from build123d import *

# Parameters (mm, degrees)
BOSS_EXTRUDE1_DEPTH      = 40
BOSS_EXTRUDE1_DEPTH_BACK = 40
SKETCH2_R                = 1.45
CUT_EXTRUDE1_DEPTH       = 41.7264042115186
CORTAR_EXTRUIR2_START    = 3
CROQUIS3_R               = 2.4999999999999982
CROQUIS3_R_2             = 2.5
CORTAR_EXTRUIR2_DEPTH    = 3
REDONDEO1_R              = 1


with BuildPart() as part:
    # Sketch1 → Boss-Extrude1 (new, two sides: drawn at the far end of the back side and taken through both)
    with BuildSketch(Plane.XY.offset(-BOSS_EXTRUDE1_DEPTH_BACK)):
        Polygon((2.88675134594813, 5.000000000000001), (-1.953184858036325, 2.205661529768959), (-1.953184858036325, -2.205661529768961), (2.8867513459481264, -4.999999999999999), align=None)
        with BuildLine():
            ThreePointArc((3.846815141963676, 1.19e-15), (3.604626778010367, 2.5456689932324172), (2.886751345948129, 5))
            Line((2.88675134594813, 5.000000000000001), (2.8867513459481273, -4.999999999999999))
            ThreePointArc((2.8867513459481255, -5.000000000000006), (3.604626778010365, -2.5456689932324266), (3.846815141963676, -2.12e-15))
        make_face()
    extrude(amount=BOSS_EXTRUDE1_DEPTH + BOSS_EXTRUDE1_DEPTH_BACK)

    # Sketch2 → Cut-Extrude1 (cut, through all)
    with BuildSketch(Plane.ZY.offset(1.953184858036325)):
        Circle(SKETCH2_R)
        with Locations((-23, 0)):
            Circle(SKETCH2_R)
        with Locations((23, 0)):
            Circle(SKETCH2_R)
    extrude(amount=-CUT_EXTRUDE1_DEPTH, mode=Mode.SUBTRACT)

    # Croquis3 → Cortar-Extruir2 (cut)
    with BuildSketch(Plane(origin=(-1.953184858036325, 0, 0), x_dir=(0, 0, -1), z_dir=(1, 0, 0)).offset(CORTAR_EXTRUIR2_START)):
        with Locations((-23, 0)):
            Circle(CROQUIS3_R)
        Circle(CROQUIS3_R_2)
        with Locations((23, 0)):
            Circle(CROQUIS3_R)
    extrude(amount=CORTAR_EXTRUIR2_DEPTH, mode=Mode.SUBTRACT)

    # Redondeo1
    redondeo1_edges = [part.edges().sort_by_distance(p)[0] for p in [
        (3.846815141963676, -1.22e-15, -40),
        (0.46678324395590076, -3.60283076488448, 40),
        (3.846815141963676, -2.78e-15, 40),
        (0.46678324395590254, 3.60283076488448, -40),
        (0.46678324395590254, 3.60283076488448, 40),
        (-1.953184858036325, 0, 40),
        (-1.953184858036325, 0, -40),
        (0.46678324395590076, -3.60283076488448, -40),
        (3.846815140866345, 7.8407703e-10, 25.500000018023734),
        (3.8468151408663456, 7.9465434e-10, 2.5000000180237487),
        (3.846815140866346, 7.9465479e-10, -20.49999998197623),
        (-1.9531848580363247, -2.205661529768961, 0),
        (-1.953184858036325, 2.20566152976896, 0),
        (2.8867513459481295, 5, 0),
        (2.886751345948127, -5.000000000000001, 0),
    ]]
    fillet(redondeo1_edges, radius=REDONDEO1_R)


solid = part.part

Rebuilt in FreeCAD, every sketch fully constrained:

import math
import FreeCAD as App
import Part
import Sketcher

V = App.Vector
Q = App.Units.Quantity


def edges_at(feature, points):
    """Names of the edges that pass closest to the given points."""
    edges = feature.Shape.Edges
    near = lambda p: min(range(len(edges)), key=lambda i: edges[i].distToShape(Part.Vertex(*p))[0])
    return sorted({f"Edge{near(p) + 1}" for p in points})

doc = App.newDocument("Part")
body = doc.addObject("PartDesign::Body", "Body")

sketch1 = body.newObject("Sketcher::SketchObject", "Sketch")
sketch1.AttachmentSupport = (doc.getObject("XY_Plane"), [""])
sketch1.MapMode = "FlatFace"
sketch1.addGeometry([
    Part.LineSegment(V(2.886751, 5, 0), V(-1.953185, 2.205662, 0)),
    Part.LineSegment(V(-1.953185, 2.205662, 0), V(-1.953185, -2.205662, 0)),
    Part.LineSegment(V(-1.953185, -2.205662, 0), V(2.886751, -5, 0)),
    Part.ArcOfCircle(Part.Circle(V(-9.653185, 0, 0), V(0, 0, 1), 13.5), math.radians(-21.738461), math.radians(21.738461)),
], False)
sketch1.addConstraint([
    Sketcher.Constraint("Coincident", 0, 2, 1, 1),
    Sketcher.Constraint("Coincident", 1, 2, 2, 1),
    Sketcher.Constraint("Coincident", 2, 2, 3, 1),
    Sketcher.Constraint("Coincident", 3, 2, 0, 1),
    Sketcher.Constraint("Vertical", 1),
    Sketcher.Constraint("Symmetric", 2, 2, 3, 2, -1),
    Sketcher.Constraint("Equal", 0, 2),
    Sketcher.Constraint("Radius", 3, Q("13.5 mm")),
    Sketcher.Constraint("Angle", 0, Q("-150 deg")),
    Sketcher.Constraint("DistanceY", 2, 2, -1, 1, Q("5 mm")),
    Sketcher.Constraint("DistanceX", 3, 3, 0, 2, Q("7.7 mm")),
    Sketcher.Constraint("DistanceX", -1, 1, 2, 2, Q("2.886751 mm")),
])
pad1 = body.newObject("PartDesign::Pad", "Pad")
pad1.Profile = sketch1
pad1.Type = "TwoLengths"
pad1.Length = 40
pad1.Length2 = 40

sketch2 = body.newObject("Sketcher::SketchObject", "Sketch001")
sketch2.AttachmentSupport = (doc.getObject("YZ_Plane"), [""])
sketch2.MapMode = "FlatFace"
sketch2.AttachmentOffset = App.Placement(V(0, 0, -1.953185), App.Rotation())
sketch2.addGeometry([
    Part.Circle(V(0, 0, 0), V(0, 0, 1), 1.45),
    Part.Circle(V(0, -23, 0), V(0, 0, 1), 1.45),
    Part.Circle(V(0, 23, 0), V(0, 0, 1), 1.45),
], False)
sketch2.addConstraint([
    Sketcher.Constraint("Coincident", 0, 3, -1, 1),
    Sketcher.Constraint("Equal", 0, 1),
    Sketcher.Constraint("Equal", 1, 2),
    Sketcher.Constraint("Symmetric", 1, 3, 2, 3, -1, 1),
    Sketcher.Constraint("PointOnObject", 1, 3, -2),
    Sketcher.Constraint("Diameter", 0, Q("2.9 mm")),
    Sketcher.Constraint("DistanceY", 1, 3, -1, 1, Q("23 mm")),
])
pocket1 = body.newObject("PartDesign::Pocket", "Pocket")
pocket1.Profile = sketch2
pocket1.Type = "ThroughAll"
pocket1.Reversed = True

sketch3 = body.newObject("Sketcher::SketchObject", "Sketch002")
sketch3.AttachmentSupport = (doc.getObject("YZ_Plane"), [""])
sketch3.MapMode = "FlatFace"
sketch3.AttachmentOffset = App.Placement(V(0, 0, 1.046815), App.Rotation())
sketch3.addGeometry([
    Part.Circle(V(0, 23, 0), V(0, 0, 1), 2.5),
    Part.Circle(V(0, 0, 0), V(0, 0, 1), 2.5),
    Part.Circle(V(0, -23, 0), V(0, 0, 1), 2.5),
], False)
sketch3.addConstraint([
    Sketcher.Constraint("Coincident", 1, 3, -1, 1),
    Sketcher.Constraint("Equal", 0, 1),
    Sketcher.Constraint("Equal", 1, 2),
    Sketcher.Constraint("Symmetric", 0, 3, 2, 3, -1, 1),
    Sketcher.Constraint("PointOnObject", 0, 3, -2),
    Sketcher.Constraint("Diameter", 0, Q("5 mm")),
    Sketcher.Constraint("DistanceY", -1, 1, 0, 3, Q("23 mm")),
])
pocket2 = body.newObject("PartDesign::Pocket", "Pocket001")
pocket2.Profile = sketch3
pocket2.Length = 3
pocket2.Reversed = True
doc.recompute()

fillet = body.newObject("PartDesign::Fillet", "Fillet")
fillet.Base = (pocket2, edges_at(pocket2, [
    (3.847, 0, -40),
    (0.467, -3.603, 40),
    (3.847, 0, 40),
    (0.467, 3.603, -40),
    (0.467, 3.603, 40),
    (-1.953, 0, 40),
    (-1.953, 0, -40),
    (0.467, -3.603, -40),
    (3.847, 0, 25.5),
    (3.847, 0, 2.5),
    (3.847, 0, -20.5),
    (-1.953, -2.206, 0),
    (-1.953, 2.206, 0),
    (2.887, 5, 0),
    (2.887, -5, 0),
]))
fillet.Radius = 1

doc.recompute()
